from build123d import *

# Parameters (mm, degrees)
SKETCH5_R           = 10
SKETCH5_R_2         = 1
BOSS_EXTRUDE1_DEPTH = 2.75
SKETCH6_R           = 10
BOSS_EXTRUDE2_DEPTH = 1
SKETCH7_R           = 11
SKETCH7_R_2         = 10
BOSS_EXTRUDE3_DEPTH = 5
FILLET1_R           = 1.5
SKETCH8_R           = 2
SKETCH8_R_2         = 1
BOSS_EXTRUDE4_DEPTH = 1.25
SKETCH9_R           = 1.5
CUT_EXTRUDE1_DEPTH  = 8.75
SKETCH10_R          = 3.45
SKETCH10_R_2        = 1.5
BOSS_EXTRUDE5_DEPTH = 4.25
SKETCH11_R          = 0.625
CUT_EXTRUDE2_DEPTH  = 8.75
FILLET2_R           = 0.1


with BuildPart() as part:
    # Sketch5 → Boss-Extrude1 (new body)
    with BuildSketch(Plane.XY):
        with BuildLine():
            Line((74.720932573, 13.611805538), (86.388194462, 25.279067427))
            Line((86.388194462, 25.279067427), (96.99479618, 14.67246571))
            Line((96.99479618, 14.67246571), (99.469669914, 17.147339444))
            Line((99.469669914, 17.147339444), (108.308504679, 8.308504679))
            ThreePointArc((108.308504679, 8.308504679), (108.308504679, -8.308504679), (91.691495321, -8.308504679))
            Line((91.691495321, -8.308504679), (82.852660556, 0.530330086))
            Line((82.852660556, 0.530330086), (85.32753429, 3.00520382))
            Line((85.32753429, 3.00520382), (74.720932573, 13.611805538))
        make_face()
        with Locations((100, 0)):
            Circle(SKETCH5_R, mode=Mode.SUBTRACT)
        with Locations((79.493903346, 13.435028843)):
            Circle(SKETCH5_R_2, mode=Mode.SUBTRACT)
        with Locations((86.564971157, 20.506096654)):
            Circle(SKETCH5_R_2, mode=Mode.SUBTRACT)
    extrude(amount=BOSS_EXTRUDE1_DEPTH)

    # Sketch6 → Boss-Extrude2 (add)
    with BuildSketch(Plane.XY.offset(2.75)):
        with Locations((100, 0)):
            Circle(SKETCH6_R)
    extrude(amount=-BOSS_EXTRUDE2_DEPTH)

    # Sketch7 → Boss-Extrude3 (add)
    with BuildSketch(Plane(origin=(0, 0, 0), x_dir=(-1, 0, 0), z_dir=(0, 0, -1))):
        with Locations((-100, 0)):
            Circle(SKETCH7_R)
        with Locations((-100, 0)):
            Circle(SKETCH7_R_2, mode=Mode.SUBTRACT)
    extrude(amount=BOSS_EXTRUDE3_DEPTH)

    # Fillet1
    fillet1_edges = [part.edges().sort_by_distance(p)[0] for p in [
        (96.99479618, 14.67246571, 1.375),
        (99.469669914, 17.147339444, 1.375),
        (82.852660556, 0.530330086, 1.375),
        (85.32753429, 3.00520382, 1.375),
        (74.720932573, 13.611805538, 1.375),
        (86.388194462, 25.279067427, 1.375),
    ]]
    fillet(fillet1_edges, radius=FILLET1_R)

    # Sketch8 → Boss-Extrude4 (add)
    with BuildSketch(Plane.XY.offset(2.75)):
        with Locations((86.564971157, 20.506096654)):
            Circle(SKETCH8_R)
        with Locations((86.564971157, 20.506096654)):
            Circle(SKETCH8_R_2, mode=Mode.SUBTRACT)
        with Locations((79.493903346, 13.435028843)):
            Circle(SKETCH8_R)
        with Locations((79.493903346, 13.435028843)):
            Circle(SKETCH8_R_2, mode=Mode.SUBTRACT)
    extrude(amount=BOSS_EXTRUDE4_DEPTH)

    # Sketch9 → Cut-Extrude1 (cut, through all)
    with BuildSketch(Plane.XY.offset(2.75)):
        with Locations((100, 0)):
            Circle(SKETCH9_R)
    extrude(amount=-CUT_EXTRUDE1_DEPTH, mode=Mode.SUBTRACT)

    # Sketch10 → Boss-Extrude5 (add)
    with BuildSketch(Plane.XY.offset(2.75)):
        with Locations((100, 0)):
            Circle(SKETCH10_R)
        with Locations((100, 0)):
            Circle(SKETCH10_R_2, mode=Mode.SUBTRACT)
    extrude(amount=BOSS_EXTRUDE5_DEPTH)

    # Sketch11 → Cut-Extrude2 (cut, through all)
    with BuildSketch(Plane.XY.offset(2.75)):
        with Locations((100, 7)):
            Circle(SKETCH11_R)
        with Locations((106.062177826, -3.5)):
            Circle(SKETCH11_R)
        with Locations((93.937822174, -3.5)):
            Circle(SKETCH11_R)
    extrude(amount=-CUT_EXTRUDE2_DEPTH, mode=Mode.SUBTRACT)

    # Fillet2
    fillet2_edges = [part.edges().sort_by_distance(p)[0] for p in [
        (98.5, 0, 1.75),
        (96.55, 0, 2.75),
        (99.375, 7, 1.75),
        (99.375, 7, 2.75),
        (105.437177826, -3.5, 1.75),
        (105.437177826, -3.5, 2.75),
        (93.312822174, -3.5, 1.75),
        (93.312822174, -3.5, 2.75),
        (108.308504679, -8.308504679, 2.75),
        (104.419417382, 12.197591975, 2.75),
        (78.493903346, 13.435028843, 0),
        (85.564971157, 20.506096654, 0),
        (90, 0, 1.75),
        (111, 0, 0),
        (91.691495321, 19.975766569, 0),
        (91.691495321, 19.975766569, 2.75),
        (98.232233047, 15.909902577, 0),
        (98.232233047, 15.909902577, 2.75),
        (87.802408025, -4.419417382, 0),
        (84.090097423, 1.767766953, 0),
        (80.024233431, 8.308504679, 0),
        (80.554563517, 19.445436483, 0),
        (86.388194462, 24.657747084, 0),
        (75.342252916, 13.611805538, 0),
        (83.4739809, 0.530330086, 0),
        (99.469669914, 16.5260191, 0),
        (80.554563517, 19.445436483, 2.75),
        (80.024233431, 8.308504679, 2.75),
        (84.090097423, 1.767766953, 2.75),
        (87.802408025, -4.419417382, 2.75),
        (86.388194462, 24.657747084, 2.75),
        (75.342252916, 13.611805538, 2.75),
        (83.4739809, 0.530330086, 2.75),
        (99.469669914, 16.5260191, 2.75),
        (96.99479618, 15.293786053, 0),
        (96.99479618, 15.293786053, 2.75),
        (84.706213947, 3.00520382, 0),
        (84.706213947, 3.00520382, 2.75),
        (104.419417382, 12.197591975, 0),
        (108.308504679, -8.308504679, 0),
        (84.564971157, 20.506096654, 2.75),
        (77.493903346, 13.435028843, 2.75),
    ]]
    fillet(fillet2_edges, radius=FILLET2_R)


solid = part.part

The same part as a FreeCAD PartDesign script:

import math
import FreeCAD as App
import Part
import Sketcher

V = App.Vector
Q = App.Units.Quantity


def edges_at(feature, points):
    """Names of the edges that pass closest to the given points."""
    edges = feature.Shape.Edges
    near = lambda p: min(range(len(edges)), key=lambda i: edges[i].distToShape(Part.Vertex(*p))[0])
    return sorted({f"Edge{near(p) + 1}" for p in points})

doc = App.newDocument("Part")
body = doc.addObject("PartDesign::Body", "Body")

sketch1 = body.newObject("Sketcher::SketchObject", "Sketch")
sketch1.AttachmentSupport = (doc.getObject("XY_Plane"), [""])
sketch1.MapMode = "FlatFace"
sketch1.addGeometry([
    Part.LineSegment(V(86.4, 25.3, 0), V(74.7, 13.6, 0)),
    Part.LineSegment(V(74.7, 13.6, 0), V(85.3, 3, 0)),
    Part.LineSegment(V(85.3, 3, 0), V(82.9, 0.5, 0)),
    Part.LineSegment(V(82.9, 0.5, 0), V(91.7, -8.3, 0)),
    Part.ArcOfCircle(Part.Circle(V(100, 0, 0), V(0, 0, 1), 11.8), math.radians(-135), math.radians(45)),
    Part.LineSegment(V(108.3, 8.3, 0), V(99.5, 17.1, 0)),
    Part.LineSegment(V(99.5, 17.1, 0), V(97, 14.7, 0)),
    Part.LineSegment(V(97, 14.7, 0), V(86.4, 25.3, 0)),
    Part.Circle(V(100, 0, 0), V(0, 0, 1), 10),
    Part.Circle(V(79.5, 13.4, 0), V(0, 0, 1), 1),
    Part.Circle(V(86.6, 20.5, 0), V(0, 0, 1), 1),
], False)
sketch1.addConstraint([
    Sketcher.Constraint("Coincident", 0, 2, 1, 1),
    Sketcher.Constraint("Coincident", 1, 2, 2, 1),
    Sketcher.Constraint("Coincident", 2, 2, 3, 1),
    Sketcher.Constraint("Tangent", 3, 2, 4, 1),
    Sketcher.Constraint("Tangent", 4, 2, 5, 1),
    Sketcher.Constraint("Coincident", 5, 2, 6, 1),
    Sketcher.Constraint("Coincident", 6, 2, 7, 1),
    Sketcher.Constraint("Coincident", 7, 2, 0, 1),
    Sketcher.Constraint("Coincident", 8, 3, 4, 3),
    Sketcher.Constraint("Equal", 9, 10),
    Sketcher.Constraint("PointOnObject", 4, 3, -1),
    Sketcher.Constraint("Perpendicular", 0, 1),
    Sketcher.Constraint("Perpendicular", 1, 2),
    Sketcher.Constraint("Perpendicular", 2, 3),
    Sketcher.Constraint("Parallel", 3, 5),
    Sketcher.Constraint("Perpendicular", 5, 6),
    Sketcher.Constraint("Perpendicular", 6, 7),
    Sketcher.Constraint("Equal", 3, 5),
    Sketcher.Constraint("Equal", 2, 6),
    Sketcher.Constraint("Diameter", 8, 20.0),
    Sketcher.Constraint("Diameter", 9, 2.0),
    Sketcher.Constraint("Angle", 0, Q("-135 deg")),
    Sketcher.Constraint("Radius", 4, 11.75),
    Sketcher.Constraint("Distance", 1, 15.0),
    Sketcher.Constraint("DistanceX", -1, 1, 4, 3, 100.0),
    Sketcher.Constraint("Distance", 0, 16.5),
    Sketcher.Constraint("Distance", 3, 12.5),
    Sketcher.Constraint("DistanceY", 2, 2, 9, 3, 12.904699),
    Sketcher.Constraint("DistanceX", 10, 3, 5, 2, 12.904699),
    Sketcher.Constraint("DistanceX", 0, 2, 9, 3, 4.772971),
    Sketcher.Constraint("DistanceY", 0, 2, 10, 3, 6.894291),
])
pad1 = body.newObject("PartDesign::Pad", "Pad")
pad1.Profile = sketch1
pad1.Length = 2.75

sketch2 = body.newObject("Sketcher::SketchObject", "Sketch001")
sketch2.AttachmentSupport = (doc.getObject("XY_Plane"), [""])
sketch2.MapMode = "FlatFace"
sketch2.AttachmentOffset = App.Placement(V(0, 0, 2.75), App.Rotation())
sketch2.addGeometry(Part.Circle(V(100, 0, 0), V(0, 0, 1), 10), False)
sketch2.addConstraint([
    Sketcher.Constraint("PointOnObject", 0, 3, -1),
    Sketcher.Constraint("Diameter", 0, 20.0),
    Sketcher.Constraint("DistanceX", -1, 1, 0, 3, 100.0),
])
pad2 = body.newObject("PartDesign::Pad", "Pad001")
pad2.Profile = sketch2
pad2.Length = 1
pad2.Reversed = True

sketch3 = body.newObject("Sketcher::SketchObject", "Sketch002")
sketch3.AttachmentSupport = (doc.getObject("XY_Plane"), [""])
sketch3.MapMode = "FlatFace"
sketch3.addGeometry([
    Part.Circle(V(100, 0, 0), V(0, 0, 1), 11),
    Part.Circle(V(100, 0, 0), V(0, 0, 1), 10),
], False)
sketch3.addConstraint([
    Sketcher.Constraint("Coincident", 1, 3, 0, 3),
    Sketcher.Constraint("PointOnObject", 0, 3, -1),
    Sketcher.Constraint("Diameter", 0, 22.0),
    Sketcher.Constraint("Diameter", 1, 20.0),
    Sketcher.Constraint("DistanceX", -1, 1, 0, 3, 100.0),
])
pad3 = body.newObject("PartDesign::Pad", "Pad002")
pad3.Profile = sketch3
pad3.Length = 5
pad3.Reversed = True
doc.recompute()

fillet = body.newObject("PartDesign::Fillet", "Fillet")
fillet.Base = (pad3, edges_at(pad3, [
    (96.995, 14.672, 1.375),
    (99.47, 17.147, 1.375),
    (82.853, 0.53, 1.375),
    (85.328, 3.005, 1.375),
    (74.721, 13.612, 1.375),
    (86.388, 25.279, 1.375),
]))
fillet.Radius = 1.5

sketch4 = body.newObject("Sketcher::SketchObject", "Sketch003")
sketch4.AttachmentSupport = (doc.getObject("XY_Plane"), [""])
sketch4.MapMode = "FlatFace"
sketch4.AttachmentOffset = App.Placement(V(0, 0, 2.75), App.Rotation())
sketch4.addGeometry([
    Part.Circle(V(86.6, 20.5, 0), V(0, 0, 1), 2),
    Part.Circle(V(86.6, 20.5, 0), V(0, 0, 1), 1),
    Part.Circle(V(79.5, 13.4, 0), V(0, 0, 1), 2),
    Part.Circle(V(79.5, 13.4, 0), V(0, 0, 1), 1),
], False)
sketch4.addConstraint([
    Sketcher.Constraint("Coincident", 1, 3, 0, 3),
    Sketcher.Constraint("Coincident", 3, 3, 2, 3),
    Sketcher.Constraint("Equal", 0, 2),
    Sketcher.Constraint("Equal", 1, 3),
    Sketcher.Constraint("Diameter", 0, 4.0),
    Sketcher.Constraint("Diameter", 1, 2.0),
    Sketcher.Constraint("DistanceX", -1, 1, 0, 3, 86.564971),
    Sketcher.Constraint("DistanceY", -1, 1, 2, 3, 13.435029),
    Sketcher.Constraint("DistanceY", -1, 1, 0, 3, 20.506097),
    Sketcher.Constraint("DistanceX", -1, 1, 2, 3, 79.493903),
])
pad4 = body.newObject("PartDesign::Pad", "Pad003")
pad4.Profile = sketch4
pad4.Length = 1.25

sketch5 = body.newObject("Sketcher::SketchObject", "Sketch004")
sketch5.AttachmentSupport = (doc.getObject("XY_Plane"), [""])
sketch5.MapMode = "FlatFace"
sketch5.AttachmentOffset = App.Placement(V(0, 0, 2.75), App.Rotation())
sketch5.addGeometry(Part.Circle(V(100, 0, 0), V(0, 0, 1), 1.5), False)
sketch5.addConstraint([
    Sketcher.Constraint("PointOnObject", 0, 3, -1),
    Sketcher.Constraint("Diameter", 0, 3.0),
    Sketcher.Constraint("DistanceX", -1, 1, 0, 3, 100.0),
])
pocket1 = body.newObject("PartDesign::Pocket", "Pocket")
pocket1.Profile = sketch5
pocket1.Type = "ThroughAll"

sketch6 = body.newObject("Sketcher::SketchObject", "Sketch005")
sketch6.AttachmentSupport = (doc.getObject("XY_Plane"), [""])
sketch6.MapMode = "FlatFace"
sketch6.AttachmentOffset = App.Placement(V(0, 0, 2.75), App.Rotation())
sketch6.addGeometry([
    Part.Circle(V(100, 0, 0), V(0, 0, 1), 3.5),
    Part.Circle(V(100, 0, 0), V(0, 0, 1), 1.5),
], False)
sketch6.addConstraint([
    Sketcher.Constraint("Coincident", 1, 3, 0, 3),
    Sketcher.Constraint("PointOnObject", 0, 3, -1),
    Sketcher.Constraint("Diameter", 1, 3.0),
    Sketcher.Constraint("Diameter", 0, 6.9),
    Sketcher.Constraint("DistanceX", -1, 1, 0, 3, 100.0),
])
pad5 = body.newObject("PartDesign::Pad", "Pad004")
pad5.Profile = sketch6
pad5.Length = 4.25

sketch7 = body.newObject("Sketcher::SketchObject", "Sketch006")
sketch7.AttachmentSupport = (doc.getObject("XY_Plane"), [""])
sketch7.MapMode = "FlatFace"
sketch7.AttachmentOffset = App.Placement(V(0, 0, 2.75), App.Rotation())
sketch7.addGeometry([
    Part.Circle(V(100, 7, 0), V(0, 0, 1), 0.6),
    Part.Circle(V(106.1, -3.5, 0), V(0, 0, 1), 0.6),
    Part.Circle(V(93.9, -3.5, 0), V(0, 0, 1), 0.6),
], False)
sketch7.addConstraint([
    Sketcher.Constraint("Equal", 0, 1),
    Sketcher.Constraint("Equal", 1, 2),
    Sketcher.Constraint("Horizontal", 1, 3, 2, 3),
    Sketcher.Constraint("Diameter", 0, 1.25),
    Sketcher.Constraint("DistanceX", -1, 1, 0, 3, 100.0),
    Sketcher.Constraint("DistanceY", -1, 1, 0, 3, 7.0),
    Sketcher.Constraint("DistanceY", 1, 3, -1, 1, 3.5),
    Sketcher.Constraint("DistanceX", -1, 1, 1, 3, 106.062178),
    Sketcher.Constraint("DistanceX", -1, 1, 2, 3, 93.937822),
])
pocket2 = body.newObject("PartDesign::Pocket", "Pocket001")
pocket2.Profile = sketch7
pocket2.Type = "ThroughAll"
doc.recompute()

fillet2 = body.newObject("PartDesign::Fillet", "Fillet001")
fillet2.Base = (pocket2, edges_at(pocket2, [
    (98.5, 0, 1.75),
    (96.55, 0, 2.75),
    (99.375, 7, 1.75),
    (99.375, 7, 2.75),
    (105.437, -3.5, 1.75),
    (105.437, -3.5, 2.75),
    (93.313, -3.5, 1.75),
    (93.313, -3.5, 2.75),
    (108.309, -8.309, 2.75),
    (104.419, 12.198, 2.75),
    (78.494, 13.435, 0),
    (85.565, 20.506, 0),
    (90, 0, 1.75),
    (111, 0, 0),
    (91.691, 19.976, 0),
    (91.691, 19.976, 2.75),
    (98.232, 15.91, 0),
    (98.232, 15.91, 2.75),
    (87.802, -4.419, 0),
    (84.09, 1.768, 0),
    (80.024, 8.309, 0),
    (80.555, 19.445, 0),
    (86.388, 24.658, 0),
    (75.342, 13.612, 0),
    (83.474, 0.53, 0),
    (99.47, 16.526, 0),
    (80.555, 19.445, 2.75),
    (80.024, 8.309, 2.75),
    (84.09, 1.768, 2.75),
    (87.802, -4.419, 2.75),
    (86.388, 24.658, 2.75),
    (75.342, 13.612, 2.75),
    (83.474, 0.53, 2.75),
    (99.47, 16.526, 2.75),
    (96.995, 15.294, 0),
    (96.995, 15.294, 2.75),
    (84.706, 3.005, 0),
    (84.706, 3.005, 2.75),
    (104.419, 12.198, 0),
    (108.309, -8.309, 0),
    (84.565, 20.506, 2.75),
    (77.494, 13.435, 2.75),
]))
fillet2.Radius = 0.1

doc.recompute()
